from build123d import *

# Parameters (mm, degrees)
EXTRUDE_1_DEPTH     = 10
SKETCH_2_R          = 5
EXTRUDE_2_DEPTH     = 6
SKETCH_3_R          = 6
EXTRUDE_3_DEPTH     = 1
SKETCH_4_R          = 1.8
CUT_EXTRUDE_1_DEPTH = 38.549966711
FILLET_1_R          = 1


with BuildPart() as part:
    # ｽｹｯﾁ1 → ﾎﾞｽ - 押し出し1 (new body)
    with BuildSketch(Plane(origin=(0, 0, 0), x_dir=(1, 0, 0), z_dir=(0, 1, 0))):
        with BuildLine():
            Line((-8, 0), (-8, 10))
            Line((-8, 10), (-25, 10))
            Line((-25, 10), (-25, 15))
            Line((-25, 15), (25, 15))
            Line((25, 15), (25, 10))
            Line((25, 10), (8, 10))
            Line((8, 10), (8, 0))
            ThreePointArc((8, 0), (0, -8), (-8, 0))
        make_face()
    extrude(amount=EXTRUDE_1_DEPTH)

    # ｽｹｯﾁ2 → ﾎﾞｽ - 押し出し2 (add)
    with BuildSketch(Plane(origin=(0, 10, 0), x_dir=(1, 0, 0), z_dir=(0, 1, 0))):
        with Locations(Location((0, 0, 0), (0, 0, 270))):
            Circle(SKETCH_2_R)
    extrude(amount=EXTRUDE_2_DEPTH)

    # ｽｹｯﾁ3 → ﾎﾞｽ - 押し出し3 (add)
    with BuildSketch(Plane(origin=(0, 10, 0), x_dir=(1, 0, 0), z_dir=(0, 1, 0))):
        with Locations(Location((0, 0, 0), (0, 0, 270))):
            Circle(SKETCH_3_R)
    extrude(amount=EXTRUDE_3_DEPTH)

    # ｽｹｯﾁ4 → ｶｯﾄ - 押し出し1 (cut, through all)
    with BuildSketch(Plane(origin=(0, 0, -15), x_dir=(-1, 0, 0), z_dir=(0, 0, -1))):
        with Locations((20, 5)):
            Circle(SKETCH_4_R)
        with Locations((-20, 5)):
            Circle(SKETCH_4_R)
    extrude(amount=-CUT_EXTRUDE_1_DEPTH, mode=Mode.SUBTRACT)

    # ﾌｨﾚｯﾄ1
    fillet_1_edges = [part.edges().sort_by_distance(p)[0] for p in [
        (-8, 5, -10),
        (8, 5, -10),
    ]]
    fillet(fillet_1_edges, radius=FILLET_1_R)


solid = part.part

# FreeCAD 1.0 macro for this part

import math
import FreeCAD as App
import Part
import Sketcher

V = App.Vector


def edges_at(feature, points):
    """Names of the edges that pass closest to the given points."""
    edges = feature.Shape.Edges
    near = lambda p: min(range(len(edges)), key=lambda i: edges[i].distToShape(Part.Vertex(*p))[0])
    return sorted({f"Edge{near(p) + 1}" for p in points})

doc = App.newDocument("Part")
body = doc.addObject("PartDesign::Body", "Body")

# Sketch on XZ plane
sketch1 = doc.addObject("Sketcher::SketchObject", "Sketch")
body.addObject(sketch1)
sketch1.AttachmentSupport = (doc.XZ_Plane, [""])
sketch1.MapMode = "FlatFace"
sketch1.addGeometry(Part.LineSegment(V(-8, -10, 0), V(-8, 0, 0)), False)
sketch1.addGeometry(Part.ArcOfCircle(Part.Circle(V(0, 0, 0), V(0, 0, 1), 8), math.radians(0), math.radians(180)), False)
sketch1.addGeometry(Part.LineSegment(V(8, 0, 0), V(8, -10, 0)), False)
sketch1.addGeometry(Part.LineSegment(V(8, -10, 0), V(25, -10, 0)), False)
sketch1.addGeometry(Part.LineSegment(V(25, -10, 0), V(25, -15, 0)), False)
sketch1.addGeometry(Part.LineSegment(V(25, -15, 0), V(-25, -15, 0)), False)
sketch1.addGeometry(Part.LineSegment(V(-25, -15, 0), V(-25, -10, 0)), False)
sketch1.addGeometry(Part.LineSegment(V(-25, -10, 0), V(-8, -10, 0)), False)
sketch1.addConstraint(Sketcher.Constraint("Tangent", 0, 2, 1, 2))
sketch1.addConstraint(Sketcher.Constraint("Tangent", 1, 1, 2, 1))
sketch1.addConstraint(Sketcher.Constraint("Coincident", 2, 2, 3, 1))
sketch1.addConstraint(Sketcher.Constraint("Coincident", 3, 2, 4, 1))
sketch1.addConstraint(Sketcher.Constraint("Coincident", 4, 2, 5, 1))
sketch1.addConstraint(Sketcher.Constraint("Coincident", 5, 2, 6, 1))
sketch1.addConstraint(Sketcher.Constraint("Coincident", 6, 2, 7, 1))
sketch1.addConstraint(Sketcher.Constraint("Coincident", 7, 2, 0, 1))
sketch1.addConstraint(Sketcher.Constraint("Vertical", 0))
sketch1.addConstraint(Sketcher.Constraint("Vertical", 2))
sketch1.addConstraint(Sketcher.Constraint("Horizontal", 3))
sketch1.addConstraint(Sketcher.Constraint("Vertical", 4))
sketch1.addConstraint(Sketcher.Constraint("Horizontal", 5))
sketch1.addConstraint(Sketcher.Constraint("Vertical", 6))
sketch1.addConstraint(Sketcher.Constraint("Horizontal", 7))
sketch1.addConstraint(Sketcher.Constraint("Coincident", 1, 3, -1, 1))
sketch1.addConstraint(Sketcher.Constraint("Symmetric", 3, 2, 6, 2, -2))
sketch1.addConstraint(Sketcher.Constraint("Radius", 1, 8.0))
sketch1.addConstraint(Sketcher.Constraint("DistanceX", 3, 1, 3, 2, 17.0))
sketch1.addConstraint(Sketcher.Constraint("DistanceY", 0, 1, 0, 2, 10.0))
sketch1.addConstraint(Sketcher.Constraint("DistanceY", 4, 2, 4, 1, 5.0))
pad1 = doc.addObject("PartDesign::Pad", "Pad")
body.addObject(pad1)
pad1.Profile = sketch1
pad1.Length = 10
pad1.Reversed = True

# Sketch on XZ plane
sketch2 = doc.addObject("Sketcher::SketchObject", "Sketch001")
body.addObject(sketch2)
sketch2.AttachmentSupport = (doc.XZ_Plane, [""])
sketch2.MapMode = "FlatFace"
sketch2.AttachmentOffset = App.Placement(V(0, 0, -10), App.Rotation())
sketch2.addGeometry(Part.Circle(V(0, 0, 0), V(0, 0, 1), 5), False)
sketch2.addConstraint(Sketcher.Constraint("Coincident", 0, 3, -1, 1))
sketch2.addConstraint(Sketcher.Constraint("Diameter", 0, 10.0))
pad2 = doc.addObject("PartDesign::Pad", "Pad001")
body.addObject(pad2)
pad2.Profile = sketch2
pad2.Length = 6
pad2.Reversed = True

# Sketch on XZ plane
sketch3 = doc.addObject("Sketcher::SketchObject", "Sketch002")
body.addObject(sketch3)
sketch3.AttachmentSupport = (doc.XZ_Plane, [""])
sketch3.MapMode = "FlatFace"
sketch3.AttachmentOffset = App.Placement(V(0, 0, -10), App.Rotation())
sketch3.addGeometry(Part.Circle(V(0, 0, 0), V(0, 0, 1), 6), False)
sketch3.addConstraint(Sketcher.Constraint("Coincident", 0, 3, -1, 1))
sketch3.addConstraint(Sketcher.Constraint("Diameter", 0, 12.0))
pad3 = doc.addObject("PartDesign::Pad", "Pad002")
body.addObject(pad3)
pad3.Profile = sketch3
pad3.Length = 1
pad3.Reversed = True

# Sketch on XY plane
sketch4 = doc.addObject("Sketcher::SketchObject", "Sketch003")
body.addObject(sketch4)
sketch4.AttachmentSupport = (doc.XY_Plane, [""])
sketch4.MapMode = "FlatFace"
sketch4.AttachmentOffset = App.Placement(V(0, 0, -15), App.Rotation())
sketch4.addGeometry(Part.Circle(V(-20, 5, 0), V(0, 0, 1), 1.8), False)
sketch4.addGeometry(Part.Circle(V(20, 5, 0), V(0, 0, 1), 1.8), False)
sketch4.addConstraint(Sketcher.Constraint("Equal", 0, 1))
sketch4.addConstraint(Sketcher.Constraint("Symmetric", 0, 3, 1, 3, -2))
sketch4.addConstraint(Sketcher.Constraint("Diameter", 0, 3.6))
sketch4.addConstraint(Sketcher.Constraint("DistanceX", 0, 3, -1, 1, 20.0))
sketch4.addConstraint(Sketcher.Constraint("DistanceY", -1, 1, 0, 3, 5.0))
pocket1 = doc.addObject("PartDesign::Pocket", "Pocket")
body.addObject(pocket1)
pocket1.Profile = sketch4
pocket1.Type = "ThroughAll"
pocket1.Reversed = True
doc.recompute()

fillet = doc.addObject("PartDesign::Fillet", "Fillet")
body.addObject(fillet)
fillet.Base = (pocket1, edges_at(pocket1, [(-8, 5, -10), (8, 5, -10)]))
fillet.Radius = 1

doc.recompute()
